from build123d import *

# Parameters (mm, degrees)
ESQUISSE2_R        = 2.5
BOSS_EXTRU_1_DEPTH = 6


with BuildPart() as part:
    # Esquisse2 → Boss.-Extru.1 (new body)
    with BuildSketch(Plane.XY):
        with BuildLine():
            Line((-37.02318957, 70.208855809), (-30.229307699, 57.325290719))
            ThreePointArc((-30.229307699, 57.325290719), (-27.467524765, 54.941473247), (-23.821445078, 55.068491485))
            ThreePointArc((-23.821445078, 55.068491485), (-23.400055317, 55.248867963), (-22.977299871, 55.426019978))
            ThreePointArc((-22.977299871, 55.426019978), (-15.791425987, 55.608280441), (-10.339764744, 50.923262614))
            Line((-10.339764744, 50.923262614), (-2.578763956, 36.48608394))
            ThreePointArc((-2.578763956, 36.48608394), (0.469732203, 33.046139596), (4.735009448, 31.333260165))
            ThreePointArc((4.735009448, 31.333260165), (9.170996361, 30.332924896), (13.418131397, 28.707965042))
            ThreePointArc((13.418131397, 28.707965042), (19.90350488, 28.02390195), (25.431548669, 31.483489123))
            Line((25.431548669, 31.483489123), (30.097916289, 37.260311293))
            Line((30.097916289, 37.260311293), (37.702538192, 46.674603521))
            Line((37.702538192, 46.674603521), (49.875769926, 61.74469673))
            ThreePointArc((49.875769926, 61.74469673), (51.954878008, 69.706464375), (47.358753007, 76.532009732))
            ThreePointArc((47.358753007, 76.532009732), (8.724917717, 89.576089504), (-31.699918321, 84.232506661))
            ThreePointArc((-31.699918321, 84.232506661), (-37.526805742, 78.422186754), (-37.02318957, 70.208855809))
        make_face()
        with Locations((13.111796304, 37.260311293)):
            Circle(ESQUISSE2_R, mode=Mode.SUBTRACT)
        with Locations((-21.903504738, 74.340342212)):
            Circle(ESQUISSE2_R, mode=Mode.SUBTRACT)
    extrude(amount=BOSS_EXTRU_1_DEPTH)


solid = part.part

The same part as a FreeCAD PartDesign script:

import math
import FreeCAD as App
import Part
import Sketcher

V = App.Vector
Q = App.Units.Quantity

doc = App.newDocument("Part")
body = doc.addObject("PartDesign::Body", "Body")

sketch1 = body.newObject("Sketcher::SketchObject", "Sketch")
sketch1.AttachmentSupport = (doc.getObject("XY_Plane"), [""])
sketch1.MapMode = "FlatFace"
sketch1.addGeometry([
    Part.LineSegment(V(-37.02319, 70.208856, 0), V(-30.229308, 57.325291, 0)),
    Part.ArcOfCircle(Part.Circle(V(-25.806566, 59.657532, 0), V(0, 0, 1), 5), math.radians(-152.196003), math.radians(-66.607729)),
    Part.ArcOfCircle(Part.Circle(V(-0.000003, 0.000008, 0), V(0, 0, 1), 59.999991), math.radians(112.516842), math.radians(113.392271)),
    Part.ArcOfCircle(Part.Circle(V(-19.14775, 46.18835, 0), V(0, 0, 1), 10), math.radians(28.261162), math.radians(112.516843)),
    Part.LineSegment(V(-10.339765, 50.923263, 0), V(-2.578764, 36.486084, 0)),
    Part.ArcOfCircle(Part.Circle(V(6.229221, 41.220997, 0), V(0, 0, 1), 10), math.radians(-151.738838), math.radians(-98.593384)),
    Part.ArcOfCircle(Part.Circle(V(0, 0, 0), V(0, 0, 1), 31.689012), math.radians(64.948567), math.radians(81.406616)),
    Part.ArcOfCircle(Part.Circle(V(17.652448, 37.767245, 0), V(0, 0, 1), 10), math.radians(-115.051433), math.radians(-38.930381)),
    Part.LineSegment(V(25.431549, 31.483489, 0), V(30.097916, 37.260311, 0)),
    Part.LineSegment(V(30.097916, 37.260311, 0), V(37.702538, 46.674604, 0)),
    Part.LineSegment(V(37.702538, 46.674604, 0), V(49.87577, 61.744697, 0)),
    Part.ArcOfCircle(Part.Circle(V(42.096669, 68.028453, 0), V(0, 0, 1), 10), math.radians(-38.930381), math.radians(58.250374)),
    Part.ArcOfCircle(Part.Circle(V(0, 0, 0), V(0, 0, 1), 90), math.radians(58.250374), math.radians(110.623241)),
    Part.ArcOfCircle(Part.Circle(V(-28.177705, 74.873339, 0), V(0, 0, 1), 10), math.radians(110.623241), math.radians(207.803997)),
    Part.Circle(V(13.111796, 37.260311, 0), V(0, 0, 1), 2.5),
    Part.Circle(V(-21.903505, 74.340342, 0), V(0, 0, 1), 2.5),
], False)
sketch1.addConstraint([
    Sketcher.Constraint("Tangent", 0, 2, 1, 1),
    Sketcher.Constraint("Tangent", 1, 2, 2, 2),
    Sketcher.Constraint("Tangent", 2, 1, 3, 2),
    Sketcher.Constraint("Tangent", 3, 1, 4, 1),
    Sketcher.Constraint("Tangent", 4, 2, 5, 1),
    Sketcher.Constraint("Tangent", 5, 2, 6, 2),
    Sketcher.Constraint("Tangent", 6, 1, 7, 1),
    Sketcher.Constraint("Tangent", 7, 2, 8, 1),
    Sketcher.Constraint("Coincident", 8, 2, 9, 1),
    Sketcher.Constraint("Coincident", 9, 2, 10, 1),
    Sketcher.Constraint("Tangent", 10, 2, 11, 1),
    Sketcher.Constraint("Tangent", 11, 2, 12, 1),
    Sketcher.Constraint("Tangent", 12, 2, 13, 1),
    Sketcher.Constraint("Tangent", 13, 2, 0, 1),
    Sketcher.Constraint("Coincident", 2, 3, -1, 1),
    Sketcher.Constraint("Coincident", 6, 3, -1, 1),
    Sketcher.Constraint("Coincident", 12, 3, -1, 1),
    Sketcher.Constraint("Equal", 3, 5),
    Sketcher.Constraint("Equal", 5, 7),
    Sketcher.Constraint("Equal", 7, 11),
    Sketcher.Constraint("Equal", 11, 13),
    Sketcher.Constraint("Equal", 14, 15),
    Sketcher.Constraint("Parallel", 8, 9),
    Sketcher.Constraint("Parallel", 9, 10),
    Sketcher.Constraint("Horizontal", 14, 3, 8, 2),
    Sketcher.Constraint("Diameter", 14, Q("5 mm")),
    Sketcher.Constraint("Radius", 1, Q("5 mm")),
    Sketcher.Constraint("Radius", 3, Q("10 mm")),
    Sketcher.Constraint("Radius", 12, Q("90 mm")),
    Sketcher.Constraint("Radius", 2, Q("59.999991 mm")),
    Sketcher.Constraint("Radius", 6, Q("31.689012 mm")),
    Sketcher.Constraint("DistanceX", 3, 1, 4, 2, Q("7.761001 mm")),
    Sketcher.Constraint("DistanceX", 2, 1, -1, 1, Q("22.9773 mm")),
    Sketcher.Constraint("DistanceX", 2, 3, 14, 3, Q("13.1118 mm")),
    Sketcher.Constraint("DistanceX", 13, 3, 15, 3, Q("6.2742 mm")),
    Sketcher.Constraint("DistanceX", 15, 3, 14, 3, Q("35.015301 mm")),
    Sketcher.Constraint("DistanceY", 1, 2, 0, 2, Q("2.256799 mm")),
    Sketcher.Constraint("DistanceX", 7, 3, 7, 2, Q("7.779101 mm")),
    Sketcher.Constraint("DistanceY", 8, 2, 11, 2, Q("39.271698 mm")),
    Sketcher.Constraint("Distance", 8, Q("7.42608 mm")),
    Sketcher.Constraint("Distance", 9, Q("12.102032 mm")),
    Sketcher.Constraint("DistanceY", 1, 3, 15, 3, Q("14.68281 mm")),
])
pad1 = body.newObject("PartDesign::Pad", "Pad")
pad1.Profile = sketch1
pad1.Length = 6

doc.recompute()
